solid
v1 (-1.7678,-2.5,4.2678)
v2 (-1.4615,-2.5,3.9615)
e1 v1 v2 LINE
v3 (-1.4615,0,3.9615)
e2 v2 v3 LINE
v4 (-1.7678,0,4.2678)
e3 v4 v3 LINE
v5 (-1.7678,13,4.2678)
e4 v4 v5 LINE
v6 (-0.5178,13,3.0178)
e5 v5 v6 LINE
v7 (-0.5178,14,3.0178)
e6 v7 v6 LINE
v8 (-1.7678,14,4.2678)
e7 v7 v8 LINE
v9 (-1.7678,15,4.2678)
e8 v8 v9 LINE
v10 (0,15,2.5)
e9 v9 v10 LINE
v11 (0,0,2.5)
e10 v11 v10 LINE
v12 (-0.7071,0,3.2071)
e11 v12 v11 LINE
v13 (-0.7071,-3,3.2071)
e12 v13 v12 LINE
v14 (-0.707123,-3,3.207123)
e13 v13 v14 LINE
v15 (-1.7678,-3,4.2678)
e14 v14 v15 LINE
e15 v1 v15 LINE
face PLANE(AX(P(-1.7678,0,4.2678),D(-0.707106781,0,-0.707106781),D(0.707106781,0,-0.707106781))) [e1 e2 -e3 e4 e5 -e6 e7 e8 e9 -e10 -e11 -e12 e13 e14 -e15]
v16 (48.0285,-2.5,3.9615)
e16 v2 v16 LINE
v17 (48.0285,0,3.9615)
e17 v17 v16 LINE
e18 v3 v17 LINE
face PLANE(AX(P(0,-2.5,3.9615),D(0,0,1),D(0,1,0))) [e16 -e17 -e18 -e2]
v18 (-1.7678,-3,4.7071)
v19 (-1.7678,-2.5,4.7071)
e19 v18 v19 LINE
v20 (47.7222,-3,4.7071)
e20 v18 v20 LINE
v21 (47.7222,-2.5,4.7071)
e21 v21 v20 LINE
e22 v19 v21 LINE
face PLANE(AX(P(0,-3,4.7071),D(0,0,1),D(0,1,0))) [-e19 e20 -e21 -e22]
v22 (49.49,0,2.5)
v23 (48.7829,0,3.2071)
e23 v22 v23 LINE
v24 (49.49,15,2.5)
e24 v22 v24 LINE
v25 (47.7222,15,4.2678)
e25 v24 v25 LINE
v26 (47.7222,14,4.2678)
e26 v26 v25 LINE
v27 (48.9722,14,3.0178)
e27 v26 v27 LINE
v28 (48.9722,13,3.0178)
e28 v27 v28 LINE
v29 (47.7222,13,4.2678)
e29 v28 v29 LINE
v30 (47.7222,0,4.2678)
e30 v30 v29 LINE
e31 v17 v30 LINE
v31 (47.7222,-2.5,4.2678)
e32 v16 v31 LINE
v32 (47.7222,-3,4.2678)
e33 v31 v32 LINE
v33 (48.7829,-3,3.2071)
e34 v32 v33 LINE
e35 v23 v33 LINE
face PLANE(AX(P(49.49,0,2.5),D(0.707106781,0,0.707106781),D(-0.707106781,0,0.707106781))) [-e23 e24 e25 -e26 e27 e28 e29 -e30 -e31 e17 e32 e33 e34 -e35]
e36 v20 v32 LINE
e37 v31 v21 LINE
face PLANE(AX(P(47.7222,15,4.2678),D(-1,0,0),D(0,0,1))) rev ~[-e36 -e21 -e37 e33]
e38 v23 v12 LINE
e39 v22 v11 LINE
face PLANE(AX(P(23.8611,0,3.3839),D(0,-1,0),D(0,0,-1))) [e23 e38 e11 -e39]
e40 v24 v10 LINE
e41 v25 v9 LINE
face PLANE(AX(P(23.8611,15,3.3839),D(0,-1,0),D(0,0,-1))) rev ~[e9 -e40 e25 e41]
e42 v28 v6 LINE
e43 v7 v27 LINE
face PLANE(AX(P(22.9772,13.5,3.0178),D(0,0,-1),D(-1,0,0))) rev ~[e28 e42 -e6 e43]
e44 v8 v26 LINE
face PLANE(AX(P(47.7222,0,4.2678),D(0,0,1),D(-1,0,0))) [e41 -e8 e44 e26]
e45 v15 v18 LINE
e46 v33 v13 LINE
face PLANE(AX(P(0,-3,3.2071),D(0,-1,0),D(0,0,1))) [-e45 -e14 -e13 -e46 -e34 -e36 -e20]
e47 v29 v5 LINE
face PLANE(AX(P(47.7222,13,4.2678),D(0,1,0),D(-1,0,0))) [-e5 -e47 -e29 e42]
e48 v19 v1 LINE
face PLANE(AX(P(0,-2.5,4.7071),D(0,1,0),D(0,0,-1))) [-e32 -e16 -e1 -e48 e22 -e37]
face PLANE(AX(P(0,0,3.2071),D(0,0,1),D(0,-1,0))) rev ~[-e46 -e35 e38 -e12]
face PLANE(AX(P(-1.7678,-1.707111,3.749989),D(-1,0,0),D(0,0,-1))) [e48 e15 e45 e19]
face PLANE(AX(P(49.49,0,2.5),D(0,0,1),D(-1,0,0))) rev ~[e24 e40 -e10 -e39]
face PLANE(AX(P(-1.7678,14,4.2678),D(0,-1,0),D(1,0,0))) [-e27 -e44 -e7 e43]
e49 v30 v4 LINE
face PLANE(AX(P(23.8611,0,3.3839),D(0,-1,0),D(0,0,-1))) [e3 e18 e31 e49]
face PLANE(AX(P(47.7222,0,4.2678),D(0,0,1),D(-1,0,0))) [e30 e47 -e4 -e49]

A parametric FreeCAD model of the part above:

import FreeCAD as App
import Part
import Sketcher
from FreeCAD import Vector
Q = App.Units.Quantity


def add_polygon(sketch, points):
    """Adds a closed chain of lines whose ends are joined by coincident constraints."""
    first, n = sketch.GeometryCount, len(points)
    for a, b in zip(points, points[1:] + points[:1]):
        sketch.addGeometry(Part.LineSegment(App.Vector(*a, 0), App.Vector(*b, 0)), False)
    for i in range(n):
        sketch.addConstraint(Sketcher.Constraint("Coincident", first + i, 2, first + (i + 1) % n, 1))

doc = App.newDocument("Part")
params = doc.addObject("Spreadsheet::Sheet", "Params")
for row, (alias, value) in enumerate([
    ("sketch1_length", "2.5 mm"),
    ("sketch1_width", "49.49 mm"),
    ("pad1_length", "15 mm"),
    ("sketch2_height", "1 mm"),
    ("sketch2_width", "49.49 mm"),
    ("pocket1_length", "1.25 mm"),
    ("sketch3_width", "1 mm"),
    ("sketch3_height", "1.25 mm"),
    ("pocket2_length", "7.0597 mm"),
    ("sketch4_width", "3 mm"),
    ("sketch4_width2", "2.5 mm"),
    ("sketch4_height", "1.5 mm"),
    ("pad2_length", "49.49 mm"),
    ("sketch5_width", "3 mm"),
    ("sketch5_width2", "2.5 mm"),
    ("sketch5_height", "1.5 mm"),
    ("pad3_length", "1.7678 mm"),
    ("sketch6_width", "3 mm"),
    ("sketch6_width2", "0.5 mm"),
    ("sketch6_height", "2.54 mm"),
    ("sketch6_height2", "1.79 mm"),
    ("pocket3_length", "2.1617 mm"),
    ("sketch7_length", "2.5 mm"),
    ("pocket4_length", "20.1859 mm"),
], start=1):
    params.set(f"A{row}", alias)
    params.set(f"B{row}", "=" + value)
    params.setAlias(f"B{row}", alias)

body = doc.addObject("PartDesign::Body", "Body")

sketch1 = body.newObject("Sketcher::SketchObject", "Sketch")
sketch1.AttachmentSupport = (doc.getObject("XZ_Plane"), [""])
sketch1.MapMode = "FlatFace"
add_polygon(sketch1, [(49.5, 2.5), (47.7, 4.3), (-1.8, 4.3), (0, 2.5)])
sketch1.addConstraint(Sketcher.Constraint("Horizontal", 1))
sketch1.addConstraint(Sketcher.Constraint("Horizontal", 3))
sketch1.addConstraint(Sketcher.Constraint("PointOnObject", 2, 2, -2))
sketch1.addConstraint(Sketcher.Constraint("Parallel", 0, 2))
sketch1.addConstraint(Sketcher.Constraint("Angle", 0, Q("135 deg")))
sketch1.addConstraint(Sketcher.Constraint("Distance", 0, Q("2.5 mm")))
sketch1.addConstraint(Sketcher.Constraint("DistanceX", 1, 2, 1, 1, Q("49.49 mm")))
sketch1.addConstraint(Sketcher.Constraint("DistanceY", -1, 1, 2, 2, Q("2.5 mm")))
sketch1.setExpression("Constraints[9]", "Params.sketch1_length")
sketch1.setExpression("Constraints[10]", "Params.sketch1_width")
pad1 = body.newObject("PartDesign::Pad", "Pad")
pad1.Profile = sketch1
pad1.setExpression("Length", "Params.pad1_length")
pad1.Reversed = True

sketch2 = body.newObject("Sketcher::SketchObject", "Sketch001")
sketch2.AttachmentSupport = (doc.getObject("XY_Plane"), [""])
sketch2.MapMode = "FlatFace"
sketch2.AttachmentOffset = App.Placement(Vector(0, 0, 4.2678), App.Rotation())
add_polygon(sketch2, [(-1.8, 14), (-1.8, 13), (47.7, 13), (47.7, 14)])
sketch2.addConstraint(Sketcher.Constraint("Vertical", 0))
sketch2.addConstraint(Sketcher.Constraint("Horizontal", 1))
sketch2.addConstraint(Sketcher.Constraint("Vertical", 2))
sketch2.addConstraint(Sketcher.Constraint("Horizontal", 3))
sketch2.addConstraint(Sketcher.Constraint("DistanceY", 0, 2, 0, 1, Q("1 mm")))
sketch2.addConstraint(Sketcher.Constraint("DistanceY", -1, 1, 0, 2, Q("13 mm")))
sketch2.addConstraint(Sketcher.Constraint("DistanceX", 1, 1, 1, 2, Q("49.49 mm")))
sketch2.addConstraint(Sketcher.Constraint("DistanceX", 0, 2, -1, 1, Q("1.7678 mm")))
sketch2.setExpression("Constraints[8]", "Params.sketch2_height")
sketch2.setExpression("Constraints[10]", "Params.sketch2_width")
pocket1 = body.newObject("PartDesign::Pocket", "Pocket")
pocket1.Profile = sketch2
pocket1.setExpression("Length", "Params.pocket1_length")

sketch3 = body.newObject("Sketcher::SketchObject", "Sketch002")
sketch3.AttachmentSupport = (doc.getObject("YZ_Plane"), [""])
sketch3.MapMode = "FlatFace"
sketch3.AttachmentOffset = App.Placement(Vector(0, 0, 47.7222), App.Rotation())
add_polygon(sketch3, [(14, 4.3), (14, 3), (13, 3), (13, 4.3)])
sketch3.addConstraint(Sketcher.Constraint("Vertical", 0))
sketch3.addConstraint(Sketcher.Constraint("Horizontal", 1))
sketch3.addConstraint(Sketcher.Constraint("Vertical", 2))
sketch3.addConstraint(Sketcher.Constraint("Horizontal", 3))
sketch3.addConstraint(Sketcher.Constraint("DistanceX", 1, 2, 1, 1, Q("1 mm")))
sketch3.addConstraint(Sketcher.Constraint("DistanceX", -1, 1, 0, 2, Q("14 mm")))
sketch3.addConstraint(Sketcher.Constraint("DistanceY", 0, 2, 0, 1, Q("1.25 mm")))
sketch3.addConstraint(Sketcher.Constraint("DistanceY", -1, 1, 0, 2, Q("3.0178 mm")))
sketch3.setExpression("Constraints[8]", "Params.sketch3_width")
sketch3.setExpression("Constraints[10]", "Params.sketch3_height")
pocket2 = body.newObject("PartDesign::Pocket", "Pocket001")
pocket2.Profile = sketch3
pocket2.setExpression("Length", "Params.pocket2_length")
pocket2.Reversed = True

sketch4 = body.newObject("Sketcher::SketchObject", "Sketch003")
sketch4.AttachmentSupport = (doc.getObject("YZ_Plane"), [""])
sketch4.MapMode = "FlatFace"
add_polygon(sketch4, [(-2.5, 4.7), (-2.5, 4), (0, 4), (0, 3.2), (-3, 3.2), (-3, 4.7)])
sketch4.addConstraint(Sketcher.Constraint("Vertical", 0))
sketch4.addConstraint(Sketcher.Constraint("Horizontal", 1))
sketch4.addConstraint(Sketcher.Constraint("Vertical", 2))
sketch4.addConstraint(Sketcher.Constraint("Horizontal", 3))
sketch4.addConstraint(Sketcher.Constraint("Vertical", 4))
sketch4.addConstraint(Sketcher.Constraint("Horizontal", 5))
sketch4.addConstraint(Sketcher.Constraint("PointOnObject", 1, 2, -2))
sketch4.addConstraint(Sketcher.Constraint("DistanceX", 3, 2, 3, 1, Q("3 mm")))
sketch4.addConstraint(Sketcher.Constraint("DistanceX", 1, 1, 1, 2, Q("2.5 mm")))
sketch4.addConstraint(Sketcher.Constraint("DistanceY", 4, 1, 4, 2, Q("1.5 mm")))
sketch4.addConstraint(Sketcher.Constraint("DistanceY", 0, 2, 0, 1, Q("0.7456 mm")))
sketch4.addConstraint(Sketcher.Constraint("DistanceY", -1, 1, 2, 2, Q("3.207 mm")))
sketch4.setExpression("Constraints[13]", "Params.sketch4_width")
sketch4.setExpression("Constraints[14]", "Params.sketch4_width2")
sketch4.setExpression("Constraints[15]", "Params.sketch4_height")
pad2 = body.newObject("PartDesign::Pad", "Pad001")
pad2.Profile = sketch4
pad2.setExpression("Length", "Params.pad2_length")

sketch5 = body.newObject("Sketcher::SketchObject", "Sketch004")
sketch5.AttachmentSupport = (doc.getObject("YZ_Plane"), [""])
sketch5.MapMode = "FlatFace"
add_polygon(sketch5, [(-2.5, 4.7), (-2.5, 4), (0, 4), (0, 3.2), (-3, 3.2), (-3, 4.7)])
sketch5.addConstraint(Sketcher.Constraint("Vertical", 0))
sketch5.addConstraint(Sketcher.Constraint("Horizontal", 1))
sketch5.addConstraint(Sketcher.Constraint("Vertical", 2))
sketch5.addConstraint(Sketcher.Constraint("Horizontal", 3))
sketch5.addConstraint(Sketcher.Constraint("Vertical", 4))
sketch5.addConstraint(Sketcher.Constraint("Horizontal", 5))
sketch5.addConstraint(Sketcher.Constraint("PointOnObject", 1, 2, -2))
sketch5.addConstraint(Sketcher.Constraint("DistanceX", 3, 2, 3, 1, Q("3 mm")))
sketch5.addConstraint(Sketcher.Constraint("DistanceX", 1, 1, 1, 2, Q("2.5 mm")))
sketch5.addConstraint(Sketcher.Constraint("DistanceY", 4, 1, 4, 2, Q("1.5 mm")))
sketch5.addConstraint(Sketcher.Constraint("DistanceY", 0, 2, 0, 1, Q("0.7456 mm")))
sketch5.addConstraint(Sketcher.Constraint("DistanceY", -1, 1, 2, 2, Q("3.207 mm")))
sketch5.setExpression("Constraints[13]", "Params.sketch5_width")
sketch5.setExpression("Constraints[14]", "Params.sketch5_width2")
sketch5.setExpression("Constraints[15]", "Params.sketch5_height")
pad3 = body.newObject("PartDesign::Pad", "Pad002")
pad3.Profile = sketch5
pad3.setExpression("Length", "Params.pad3_length")
pad3.Reversed = True

sketch6 = body.newObject("Sketcher::SketchObject", "Sketch005")
sketch6.Placement = App.Placement(Vector(-0.8839, 7.5, 3.3839), App.Rotation(Vector(0, -1, 0), Vector(-0.707106781, 0, 0.707106781), Vector(-0.707106781, 0, -0.707106781), "ZXY"))
add_polygon(sketch6, [(10.5, -0.2), (10.5, 2.3), (10, 2.3), (10, 0.5), (7.5, 0.5), (7.5, -0.2)])
sketch6.addConstraint(Sketcher.Constraint("Vertical", 0))
sketch6.addConstraint(Sketcher.Constraint("Horizontal", 1))
sketch6.addConstraint(Sketcher.Constraint("Vertical", 2))
sketch6.addConstraint(Sketcher.Constraint("Horizontal", 3))
sketch6.addConstraint(Sketcher.Constraint("Vertical", 4))
sketch6.addConstraint(Sketcher.Constraint("Horizontal", 5))
sketch6.addConstraint(Sketcher.Constraint("DistanceX", 5, 1, 5, 2, Q("3 mm")))
sketch6.addConstraint(Sketcher.Constraint("DistanceX", 1, 2, 1, 1, Q("0.5 mm")))
sketch6.addConstraint(Sketcher.Constraint("DistanceX", -1, 1, 1, 2, Q("10 mm")))
sketch6.addConstraint(Sketcher.Constraint("DistanceY", 0, 1, 0, 2, Q("2.54 mm")))
sketch6.addConstraint(Sketcher.Constraint("DistanceY", 2, 2, 2, 1, Q("1.79 mm")))
sketch6.addConstraint(Sketcher.Constraint("DistanceY", -1, 1, 2, 2, Q("0.5 mm")))
sketch6.setExpression("Constraints[12]", "Params.sketch6_width")
sketch6.setExpression("Constraints[13]", "Params.sketch6_width2")
sketch6.setExpression("Constraints[15]", "Params.sketch6_height")
sketch6.setExpression("Constraints[16]", "Params.sketch6_height2")
pocket3 = body.newObject("PartDesign::Pocket", "Pocket002")
pocket3.Profile = sketch6
pocket3.setExpression("Length", "Params.pocket3_length")
pocket3.Reversed = True

sketch7 = body.newObject("Sketcher::SketchObject", "Sketch006")
sketch7.AttachmentSupport = (doc.getObject("XZ_Plane"), [""])
sketch7.MapMode = "FlatFace"
sketch7.AttachmentOffset = App.Placement(Vector(0, 0, -15), App.Rotation())
add_polygon(sketch7, [(0, 2.5), (-1.92, 2.5), (-1.77, 4.27)])
add_polygon(sketch7, [(47.72, 4.27), (47.72, 4.71), (49.49, 4.71), (49.49, 2.5)])
sketch7.addConstraint(Sketcher.Constraint("Horizontal", 0))
sketch7.addConstraint(Sketcher.Constraint("Vertical", 3))
sketch7.addConstraint(Sketcher.Constraint("Horizontal", 4))
sketch7.addConstraint(Sketcher.Constraint("Vertical", 5))
sketch7.addConstraint(Sketcher.Constraint("PointOnObject", 2, 2, -2))
sketch7.addConstraint(Sketcher.Constraint("Parallel", 2, 6))
sketch7.addConstraint(Sketcher.Constraint("Horizontal", 2, 2, 5, 2))
sketch7.addConstraint(Sketcher.Constraint("Horizontal", 1, 2, 6, 2))
sketch7.addConstraint(Sketcher.Constraint("Angle", 2, Q("-45 deg")))
sketch7.addConstraint(Sketcher.Constraint("Distance", 2, Q("2.5 mm")))
sketch7.addConstraint(Sketcher.Constraint("DistanceY", -1, 1, 0, 2, Q("2.5 mm")))
sketch7.addConstraint(Sketcher.Constraint("Angle", 1, Q("84.9795 deg")))
sketch7.addConstraint(Sketcher.Constraint("DistanceY", 5, 2, 5, 1, Q("2.207 mm")))
sketch7.addConstraint(Sketcher.Constraint("DistanceX", -1, 1, 4, 2, Q("49.49 mm")))
sketch7.setExpression("Constraints[16]", "Params.sketch7_length")
pocket4 = body.newObject("PartDesign::Pocket", "Pocket003")
pocket4.Profile = sketch7
pocket4.setExpression("Length", "Params.pocket4_length")
pocket4.Reversed = True

doc.recompute()
